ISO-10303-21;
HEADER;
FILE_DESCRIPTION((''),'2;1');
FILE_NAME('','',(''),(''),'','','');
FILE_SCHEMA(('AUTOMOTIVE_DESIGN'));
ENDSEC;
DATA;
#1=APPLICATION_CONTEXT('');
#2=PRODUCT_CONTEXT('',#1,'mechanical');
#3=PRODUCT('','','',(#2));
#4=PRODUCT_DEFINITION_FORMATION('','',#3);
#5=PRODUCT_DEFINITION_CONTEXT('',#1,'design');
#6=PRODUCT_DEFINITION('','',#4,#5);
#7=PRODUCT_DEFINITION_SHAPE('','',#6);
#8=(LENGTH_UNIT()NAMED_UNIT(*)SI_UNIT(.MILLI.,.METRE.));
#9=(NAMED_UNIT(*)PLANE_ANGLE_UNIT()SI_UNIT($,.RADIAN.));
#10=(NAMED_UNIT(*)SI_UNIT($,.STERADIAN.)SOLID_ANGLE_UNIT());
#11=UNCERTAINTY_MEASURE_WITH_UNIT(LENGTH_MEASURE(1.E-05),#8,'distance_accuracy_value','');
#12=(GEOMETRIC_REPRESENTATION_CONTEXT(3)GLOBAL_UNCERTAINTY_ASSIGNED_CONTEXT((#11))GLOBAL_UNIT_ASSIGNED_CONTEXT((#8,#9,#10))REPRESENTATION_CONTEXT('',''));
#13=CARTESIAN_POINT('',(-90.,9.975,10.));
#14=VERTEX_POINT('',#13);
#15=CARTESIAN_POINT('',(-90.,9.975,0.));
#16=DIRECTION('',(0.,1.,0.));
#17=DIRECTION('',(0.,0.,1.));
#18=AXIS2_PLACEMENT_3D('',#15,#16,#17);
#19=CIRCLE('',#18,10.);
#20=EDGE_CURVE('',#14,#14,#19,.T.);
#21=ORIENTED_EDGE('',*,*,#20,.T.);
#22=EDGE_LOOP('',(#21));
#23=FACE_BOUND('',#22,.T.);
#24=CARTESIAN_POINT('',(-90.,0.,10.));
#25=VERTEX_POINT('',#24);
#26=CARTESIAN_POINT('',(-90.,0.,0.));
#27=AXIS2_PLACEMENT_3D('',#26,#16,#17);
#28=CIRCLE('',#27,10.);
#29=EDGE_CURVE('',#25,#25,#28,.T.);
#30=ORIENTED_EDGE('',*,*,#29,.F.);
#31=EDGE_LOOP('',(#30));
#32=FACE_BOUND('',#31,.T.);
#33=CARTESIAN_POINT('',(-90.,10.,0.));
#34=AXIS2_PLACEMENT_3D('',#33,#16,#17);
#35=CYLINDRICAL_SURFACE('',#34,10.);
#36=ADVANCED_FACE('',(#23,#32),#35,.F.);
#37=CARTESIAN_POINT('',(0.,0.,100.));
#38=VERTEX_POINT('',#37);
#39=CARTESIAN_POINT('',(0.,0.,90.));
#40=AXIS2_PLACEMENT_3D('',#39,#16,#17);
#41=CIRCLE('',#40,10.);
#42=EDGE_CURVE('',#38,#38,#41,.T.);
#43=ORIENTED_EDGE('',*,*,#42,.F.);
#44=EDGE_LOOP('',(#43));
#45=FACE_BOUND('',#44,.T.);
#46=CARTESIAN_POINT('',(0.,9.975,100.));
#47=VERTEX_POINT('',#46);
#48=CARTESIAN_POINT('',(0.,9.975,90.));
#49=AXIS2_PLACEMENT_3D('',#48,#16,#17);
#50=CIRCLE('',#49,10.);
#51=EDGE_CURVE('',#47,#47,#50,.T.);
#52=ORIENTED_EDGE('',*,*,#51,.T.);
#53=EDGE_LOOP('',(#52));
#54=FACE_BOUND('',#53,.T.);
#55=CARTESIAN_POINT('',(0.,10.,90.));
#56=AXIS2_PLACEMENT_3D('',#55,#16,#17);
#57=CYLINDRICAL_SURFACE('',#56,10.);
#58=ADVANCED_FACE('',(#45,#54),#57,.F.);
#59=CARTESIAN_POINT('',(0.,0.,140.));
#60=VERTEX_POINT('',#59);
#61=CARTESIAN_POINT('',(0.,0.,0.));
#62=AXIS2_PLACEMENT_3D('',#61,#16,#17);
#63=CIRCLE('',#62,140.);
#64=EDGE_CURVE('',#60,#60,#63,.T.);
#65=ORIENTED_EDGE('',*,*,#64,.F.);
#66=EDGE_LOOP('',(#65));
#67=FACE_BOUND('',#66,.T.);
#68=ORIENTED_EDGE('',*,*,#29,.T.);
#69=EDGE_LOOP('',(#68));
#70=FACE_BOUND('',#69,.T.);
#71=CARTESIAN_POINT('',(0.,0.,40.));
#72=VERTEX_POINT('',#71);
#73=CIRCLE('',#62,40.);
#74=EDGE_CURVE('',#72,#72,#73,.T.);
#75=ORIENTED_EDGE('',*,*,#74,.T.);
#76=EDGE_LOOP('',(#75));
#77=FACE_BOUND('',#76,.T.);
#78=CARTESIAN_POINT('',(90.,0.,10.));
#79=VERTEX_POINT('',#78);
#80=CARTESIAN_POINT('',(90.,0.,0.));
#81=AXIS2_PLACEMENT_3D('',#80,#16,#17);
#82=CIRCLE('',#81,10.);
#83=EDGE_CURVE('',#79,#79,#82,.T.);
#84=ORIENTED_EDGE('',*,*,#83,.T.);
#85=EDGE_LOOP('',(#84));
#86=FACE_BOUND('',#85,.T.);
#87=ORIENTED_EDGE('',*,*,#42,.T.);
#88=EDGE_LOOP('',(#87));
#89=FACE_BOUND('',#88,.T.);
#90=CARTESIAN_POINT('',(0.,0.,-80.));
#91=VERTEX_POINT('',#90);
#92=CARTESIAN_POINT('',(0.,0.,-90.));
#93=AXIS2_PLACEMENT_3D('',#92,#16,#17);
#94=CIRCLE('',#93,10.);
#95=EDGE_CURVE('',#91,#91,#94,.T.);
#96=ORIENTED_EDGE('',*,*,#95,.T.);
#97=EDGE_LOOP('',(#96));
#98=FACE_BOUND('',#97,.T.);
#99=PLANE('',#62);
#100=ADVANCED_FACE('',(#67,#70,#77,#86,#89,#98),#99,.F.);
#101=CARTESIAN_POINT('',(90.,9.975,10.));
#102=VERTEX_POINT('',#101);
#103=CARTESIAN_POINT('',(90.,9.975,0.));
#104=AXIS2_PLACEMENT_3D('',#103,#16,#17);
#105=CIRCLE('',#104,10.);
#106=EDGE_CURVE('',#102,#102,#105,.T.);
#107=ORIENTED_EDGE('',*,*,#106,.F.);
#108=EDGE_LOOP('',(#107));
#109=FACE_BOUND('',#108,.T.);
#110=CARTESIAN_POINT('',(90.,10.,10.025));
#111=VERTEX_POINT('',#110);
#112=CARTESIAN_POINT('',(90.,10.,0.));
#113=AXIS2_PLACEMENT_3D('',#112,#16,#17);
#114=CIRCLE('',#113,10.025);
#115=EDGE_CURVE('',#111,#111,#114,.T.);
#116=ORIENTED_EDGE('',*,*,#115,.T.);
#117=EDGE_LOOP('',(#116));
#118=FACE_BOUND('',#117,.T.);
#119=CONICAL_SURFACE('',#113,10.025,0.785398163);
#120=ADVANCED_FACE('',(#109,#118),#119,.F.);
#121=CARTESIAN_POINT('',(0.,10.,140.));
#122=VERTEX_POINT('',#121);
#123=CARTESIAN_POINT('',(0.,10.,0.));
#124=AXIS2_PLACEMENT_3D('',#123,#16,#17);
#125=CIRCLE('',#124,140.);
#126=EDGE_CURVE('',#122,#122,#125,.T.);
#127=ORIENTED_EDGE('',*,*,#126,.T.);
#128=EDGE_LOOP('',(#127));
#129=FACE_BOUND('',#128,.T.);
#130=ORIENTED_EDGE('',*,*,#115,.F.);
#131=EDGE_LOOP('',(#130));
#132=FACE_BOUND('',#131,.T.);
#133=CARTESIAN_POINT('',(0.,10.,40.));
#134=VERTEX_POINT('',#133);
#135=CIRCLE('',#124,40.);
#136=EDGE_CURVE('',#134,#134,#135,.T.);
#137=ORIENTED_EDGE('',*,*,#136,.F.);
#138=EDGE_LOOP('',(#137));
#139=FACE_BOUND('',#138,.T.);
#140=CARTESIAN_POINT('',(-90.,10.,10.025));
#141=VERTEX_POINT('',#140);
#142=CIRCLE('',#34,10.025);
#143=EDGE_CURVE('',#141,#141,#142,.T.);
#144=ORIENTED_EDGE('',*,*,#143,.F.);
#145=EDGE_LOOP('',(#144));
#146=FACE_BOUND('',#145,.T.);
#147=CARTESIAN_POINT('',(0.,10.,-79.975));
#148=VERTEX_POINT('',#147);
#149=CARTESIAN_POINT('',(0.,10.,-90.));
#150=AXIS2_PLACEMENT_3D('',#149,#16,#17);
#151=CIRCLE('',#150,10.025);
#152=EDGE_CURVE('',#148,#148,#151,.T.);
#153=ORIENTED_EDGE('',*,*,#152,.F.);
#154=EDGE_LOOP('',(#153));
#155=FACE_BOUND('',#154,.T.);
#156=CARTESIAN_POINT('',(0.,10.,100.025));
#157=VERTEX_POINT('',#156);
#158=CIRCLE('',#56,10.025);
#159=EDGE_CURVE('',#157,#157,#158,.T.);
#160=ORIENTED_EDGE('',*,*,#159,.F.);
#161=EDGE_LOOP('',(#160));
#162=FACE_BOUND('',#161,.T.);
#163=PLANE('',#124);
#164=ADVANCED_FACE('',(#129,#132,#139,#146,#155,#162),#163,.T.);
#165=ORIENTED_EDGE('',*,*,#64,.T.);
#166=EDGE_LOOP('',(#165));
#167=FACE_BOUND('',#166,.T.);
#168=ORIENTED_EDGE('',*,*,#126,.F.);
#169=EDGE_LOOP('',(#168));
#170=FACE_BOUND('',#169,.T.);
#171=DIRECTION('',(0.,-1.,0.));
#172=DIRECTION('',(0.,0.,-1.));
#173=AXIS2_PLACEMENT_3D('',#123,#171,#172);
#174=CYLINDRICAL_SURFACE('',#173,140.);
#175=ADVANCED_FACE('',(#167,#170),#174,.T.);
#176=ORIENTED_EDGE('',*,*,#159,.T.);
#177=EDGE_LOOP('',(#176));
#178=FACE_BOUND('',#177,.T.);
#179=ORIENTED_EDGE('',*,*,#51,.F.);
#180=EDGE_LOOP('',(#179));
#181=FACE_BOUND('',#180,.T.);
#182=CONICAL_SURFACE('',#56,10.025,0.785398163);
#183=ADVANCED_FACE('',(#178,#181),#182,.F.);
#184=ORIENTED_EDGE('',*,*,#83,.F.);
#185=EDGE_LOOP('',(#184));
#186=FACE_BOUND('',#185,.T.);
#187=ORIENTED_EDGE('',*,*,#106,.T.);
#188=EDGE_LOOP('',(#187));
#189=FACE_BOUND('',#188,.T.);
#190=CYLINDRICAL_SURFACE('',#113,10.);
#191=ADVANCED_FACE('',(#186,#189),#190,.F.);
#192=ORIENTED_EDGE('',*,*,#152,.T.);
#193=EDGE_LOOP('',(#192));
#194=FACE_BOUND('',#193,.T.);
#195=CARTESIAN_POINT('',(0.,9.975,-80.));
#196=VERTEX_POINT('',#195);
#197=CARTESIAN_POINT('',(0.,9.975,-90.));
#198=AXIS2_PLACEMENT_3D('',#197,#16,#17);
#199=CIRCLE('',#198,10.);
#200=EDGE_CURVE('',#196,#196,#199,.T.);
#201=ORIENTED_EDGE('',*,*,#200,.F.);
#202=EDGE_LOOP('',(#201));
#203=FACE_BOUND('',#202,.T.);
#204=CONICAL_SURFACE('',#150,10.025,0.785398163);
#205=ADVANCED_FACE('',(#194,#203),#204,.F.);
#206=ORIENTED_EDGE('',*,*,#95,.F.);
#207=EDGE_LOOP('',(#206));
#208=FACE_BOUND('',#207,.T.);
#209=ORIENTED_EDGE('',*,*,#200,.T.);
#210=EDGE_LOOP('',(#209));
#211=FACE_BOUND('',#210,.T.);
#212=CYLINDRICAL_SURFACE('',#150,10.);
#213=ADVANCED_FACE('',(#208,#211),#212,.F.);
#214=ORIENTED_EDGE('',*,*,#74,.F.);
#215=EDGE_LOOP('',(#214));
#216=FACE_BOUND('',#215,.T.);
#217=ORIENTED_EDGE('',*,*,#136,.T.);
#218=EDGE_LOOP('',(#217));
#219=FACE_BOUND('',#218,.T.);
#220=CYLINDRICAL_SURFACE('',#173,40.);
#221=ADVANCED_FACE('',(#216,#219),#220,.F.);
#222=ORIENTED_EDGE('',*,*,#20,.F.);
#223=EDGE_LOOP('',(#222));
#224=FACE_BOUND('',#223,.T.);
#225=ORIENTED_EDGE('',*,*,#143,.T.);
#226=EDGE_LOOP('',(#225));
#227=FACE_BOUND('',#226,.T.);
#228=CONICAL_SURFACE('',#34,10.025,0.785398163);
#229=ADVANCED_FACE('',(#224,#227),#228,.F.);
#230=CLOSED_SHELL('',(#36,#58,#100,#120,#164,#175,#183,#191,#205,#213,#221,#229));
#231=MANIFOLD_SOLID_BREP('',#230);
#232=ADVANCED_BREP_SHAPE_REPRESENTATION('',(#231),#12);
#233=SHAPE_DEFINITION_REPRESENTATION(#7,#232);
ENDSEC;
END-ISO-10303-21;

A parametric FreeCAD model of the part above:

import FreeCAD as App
import Part
import Sketcher
from FreeCAD import Vector
Q = App.Units.Quantity

doc = App.newDocument("Part")
body = doc.addObject("PartDesign::Body", "Body")

# Sketch on XZ plane
sketch1 = doc.addObject("Sketcher::SketchObject", "Sketch")
body.addObject(sketch1)
sketch1.AttachmentSupport = (doc.XZ_Plane, [""])
sketch1.MapMode = "FlatFace"
sketch1.addGeometry(Part.Circle(Vector(0, 0, 0), Vector(0, 0, 1), 140), False)
sketch1.addGeometry(Part.Circle(Vector(0, 0, 0), Vector(0, 0, 1), 40), False)
sketch1.addConstraint(Sketcher.Constraint("Coincident", 0, 3, -1, 1))
sketch1.addConstraint(Sketcher.Constraint("Coincident", 1, 3, -1, 1))
sketch1.addConstraint(Sketcher.Constraint("Diameter", 0, 280.0))
sketch1.addConstraint(Sketcher.Constraint("Diameter", 1, 80.0))
pad1 = doc.addObject("PartDesign::Pad", "Pad")
body.addObject(pad1)
pad1.Profile = sketch1
pad1.Length = 10
pad1.Reversed = True

# Sketch on YZ plane
sketch2 = doc.addObject("Sketcher::SketchObject", "Sketch001")
body.addObject(sketch2)
sketch2.AttachmentSupport = (doc.YZ_Plane, [""])
sketch2.MapMode = "FlatFace"
sketch2.addGeometry(Part.LineSegment(Vector(0, 90, 0), Vector(10, 90, 0)), False)
sketch2.addGeometry(Part.LineSegment(Vector(10, 90, 0), Vector(10, 100.025, 0)), False)
sketch2.addGeometry(Part.LineSegment(Vector(10, 100.025, 0), Vector(9.975, 100, 0)), False)
sketch2.addGeometry(Part.LineSegment(Vector(9.975, 100, 0), Vector(0, 100, 0)), False)
sketch2.addGeometry(Part.LineSegment(Vector(0, 100, 0), Vector(0, 90, 0)), False)
sketch2.addGeometry(Part.LineSegment(Vector(10, 90, 0), Vector(0, 90, 0)), True)  # axis
sketch2.addConstraint(Sketcher.Constraint("Coincident", 0, 2, 1, 1))
sketch2.addConstraint(Sketcher.Constraint("Coincident", 1, 2, 2, 1))
sketch2.addConstraint(Sketcher.Constraint("Coincident", 2, 2, 3, 1))
sketch2.addConstraint(Sketcher.Constraint("Coincident", 3, 2, 4, 1))
sketch2.addConstraint(Sketcher.Constraint("Coincident", 4, 2, 0, 1))
sketch2.addConstraint(Sketcher.Constraint("Horizontal", 0))
sketch2.addConstraint(Sketcher.Constraint("Vertical", 1))
sketch2.addConstraint(Sketcher.Constraint("Horizontal", 3))
sketch2.addConstraint(Sketcher.Constraint("Vertical", 4))
sketch2.addConstraint(Sketcher.Constraint("Horizontal", 5))
sketch2.addConstraint(Sketcher.Constraint("Coincident", 5, 1, 0, 2))
sketch2.addConstraint(Sketcher.Constraint("PointOnObject", 3, 2, -2))
sketch2.addConstraint(Sketcher.Constraint("PointOnObject", 5, 2, -2))
sketch2.addConstraint(Sketcher.Constraint("Equal", 5, 4))
sketch2.addConstraint(Sketcher.Constraint("DistanceX", 0, 1, 0, 2, 10.0))
sketch2.addConstraint(Sketcher.Constraint("Angle", 2, Q("-135 deg")))
sketch2.addConstraint(Sketcher.Constraint("DistanceY", -1, 1, 0, 2, 90.0))
sketch2.addConstraint(Sketcher.Constraint("DistanceX", 3, 2, 3, 1, 9.975))
groove = doc.addObject("PartDesign::Groove", "Groove")
body.addObject(groove)
groove.Profile = sketch2
groove.ReferenceAxis = (sketch2, ["Axis0"])
groove.Angle = 360
doc.recompute()

datumline = doc.addObject("PartDesign::Line", "DatumLine")
body.addObject(datumline)
datumline.Placement = App.Placement(Vector(0, 0, 0), App.Rotation(Vector(0, 0, 1), Vector(0.707106781, 0, -0.707106781)))
linearpattern = doc.addObject("PartDesign::LinearPattern", "LinearPattern")
body.addObject(linearpattern)
linearpattern.Originals = [groove]
linearpattern.Direction = (datumline, [""])
linearpattern.Mode = "offset"
linearpattern.Offset = 127.279221
linearpattern.Occurrences = 2
body.Tip = linearpattern
doc.recompute()

linearpattern2 = doc.addObject("PartDesign::LinearPattern", "LinearPattern001")
body.addObject(linearpattern2)
linearpattern2.Originals = [groove]
linearpattern2.Direction = (doc.Z_Axis, [""])
linearpattern2.Mode = "offset"
linearpattern2.Offset = 180
linearpattern2.Occurrences = 2
linearpattern2.Reversed = True
body.Tip = linearpattern2
doc.recompute()

datumline2 = doc.addObject("PartDesign::Line", "DatumLine001")
body.addObject(datumline2)
datumline2.Placement = App.Placement(Vector(0, 0, 0), App.Rotation(Vector(0, 0, 1), Vector(-0.707106781, 0, -0.707106781)))
linearpattern3 = doc.addObject("PartDesign::LinearPattern", "LinearPattern002")
body.addObject(linearpattern3)
linearpattern3.Originals = [groove]
linearpattern3.Direction = (datumline2, [""])
linearpattern3.Mode = "offset"
linearpattern3.Offset = 127.279221
linearpattern3.Occurrences = 2
body.Tip = linearpattern3

doc.recompute()
